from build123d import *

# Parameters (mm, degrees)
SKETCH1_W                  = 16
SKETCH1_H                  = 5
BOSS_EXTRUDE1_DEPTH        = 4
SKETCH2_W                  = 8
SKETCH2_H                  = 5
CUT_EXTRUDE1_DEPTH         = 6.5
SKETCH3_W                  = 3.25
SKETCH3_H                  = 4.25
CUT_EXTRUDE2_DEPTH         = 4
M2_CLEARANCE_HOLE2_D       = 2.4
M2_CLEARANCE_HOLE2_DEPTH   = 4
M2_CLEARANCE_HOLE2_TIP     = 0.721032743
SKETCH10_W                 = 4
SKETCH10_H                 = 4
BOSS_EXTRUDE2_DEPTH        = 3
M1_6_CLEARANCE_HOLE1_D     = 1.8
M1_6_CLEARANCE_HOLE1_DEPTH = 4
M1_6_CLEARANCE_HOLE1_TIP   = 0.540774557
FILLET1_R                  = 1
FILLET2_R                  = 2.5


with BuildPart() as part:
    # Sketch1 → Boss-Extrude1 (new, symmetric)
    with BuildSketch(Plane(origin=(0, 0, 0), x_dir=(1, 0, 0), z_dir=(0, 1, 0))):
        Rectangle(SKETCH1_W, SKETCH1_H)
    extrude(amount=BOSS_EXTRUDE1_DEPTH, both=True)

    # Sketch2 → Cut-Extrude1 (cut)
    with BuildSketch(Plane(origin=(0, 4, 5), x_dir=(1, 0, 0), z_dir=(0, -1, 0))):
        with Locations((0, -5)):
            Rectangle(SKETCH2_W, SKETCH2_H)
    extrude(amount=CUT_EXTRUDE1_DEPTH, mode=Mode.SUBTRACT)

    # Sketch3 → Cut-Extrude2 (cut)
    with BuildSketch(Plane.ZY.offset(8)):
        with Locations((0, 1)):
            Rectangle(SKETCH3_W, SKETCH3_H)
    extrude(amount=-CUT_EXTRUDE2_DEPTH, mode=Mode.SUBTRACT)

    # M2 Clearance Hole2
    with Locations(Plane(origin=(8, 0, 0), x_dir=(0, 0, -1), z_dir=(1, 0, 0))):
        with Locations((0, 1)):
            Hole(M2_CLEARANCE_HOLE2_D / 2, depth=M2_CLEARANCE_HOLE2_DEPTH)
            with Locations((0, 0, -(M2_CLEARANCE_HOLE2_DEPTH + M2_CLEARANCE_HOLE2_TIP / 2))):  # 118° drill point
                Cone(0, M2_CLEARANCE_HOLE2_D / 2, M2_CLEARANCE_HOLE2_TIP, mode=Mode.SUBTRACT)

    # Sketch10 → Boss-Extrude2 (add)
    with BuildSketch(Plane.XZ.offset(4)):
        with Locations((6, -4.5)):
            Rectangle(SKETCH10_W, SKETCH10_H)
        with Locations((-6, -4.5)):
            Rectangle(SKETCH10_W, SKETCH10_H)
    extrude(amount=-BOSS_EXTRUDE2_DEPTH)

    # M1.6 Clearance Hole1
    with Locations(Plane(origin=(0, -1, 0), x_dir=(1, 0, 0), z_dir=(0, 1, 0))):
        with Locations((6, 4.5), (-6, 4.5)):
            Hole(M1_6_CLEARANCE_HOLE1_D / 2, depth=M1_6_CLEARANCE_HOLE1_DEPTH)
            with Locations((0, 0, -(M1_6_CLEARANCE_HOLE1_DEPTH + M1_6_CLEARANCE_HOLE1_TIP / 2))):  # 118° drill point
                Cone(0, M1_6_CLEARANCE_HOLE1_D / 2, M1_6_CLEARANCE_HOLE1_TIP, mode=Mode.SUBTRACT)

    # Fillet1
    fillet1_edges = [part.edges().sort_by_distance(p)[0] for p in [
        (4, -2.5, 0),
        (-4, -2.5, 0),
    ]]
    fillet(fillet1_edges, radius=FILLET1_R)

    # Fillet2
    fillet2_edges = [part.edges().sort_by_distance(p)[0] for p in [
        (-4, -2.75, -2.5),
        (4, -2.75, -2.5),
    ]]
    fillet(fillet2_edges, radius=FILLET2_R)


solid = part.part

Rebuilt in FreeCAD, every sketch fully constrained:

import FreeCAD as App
import Part
import Sketcher
Q = App.Units.Quantity


def edges_at(feature, points):
    """Names of the edges that pass closest to the given points."""
    edges = feature.Shape.Edges
    near = lambda p: min(range(len(edges)), key=lambda i: edges[i].distToShape(Part.Vertex(*p))[0])
    return sorted({f"Edge{near(p) + 1}" for p in points})

doc = App.newDocument("Part")
body = doc.addObject("PartDesign::Body", "Body")

sketch1 = doc.addObject("Sketcher::SketchObject", "Sketch")
body.addObject(sketch1)
sketch1.AttachmentSupport = (doc.XZ_Plane, [""])
sketch1.MapMode = "FlatFace"
sketch1.addGeometry(Part.LineSegment(App.Vector(-8, -2, 0), App.Vector(-8, 2, 0)), False)
sketch1.addGeometry(Part.LineSegment(App.Vector(-8, 2, 0), App.Vector(8, 2, 0)), False)
sketch1.addGeometry(Part.LineSegment(App.Vector(8, 2, 0), App.Vector(8, -2, 0)), False)
sketch1.addGeometry(Part.LineSegment(App.Vector(8, -2, 0), App.Vector(-8, -2, 0)), False)
sketch1.addConstraint(Sketcher.Constraint("Coincident", 0, 2, 1, 1))
sketch1.addConstraint(Sketcher.Constraint("Coincident", 1, 2, 2, 1))
sketch1.addConstraint(Sketcher.Constraint("Coincident", 2, 2, 3, 1))
sketch1.addConstraint(Sketcher.Constraint("Coincident", 3, 2, 0, 1))
sketch1.addConstraint(Sketcher.Constraint("Vertical", 0))
sketch1.addConstraint(Sketcher.Constraint("Horizontal", 1))
sketch1.addConstraint(Sketcher.Constraint("Vertical", 2))
sketch1.addConstraint(Sketcher.Constraint("Horizontal", 3))
sketch1.addConstraint(Sketcher.Constraint("Symmetric", 0, 2, 2, 2, -1, 1))
sketch1.addConstraint(Sketcher.Constraint("DistanceX", 1, 1, 1, 2, Q("16 mm")))
sketch1.addConstraint(Sketcher.Constraint("DistanceY", 0, 1, 0, 2, Q("5 mm")))
pad1 = doc.addObject("PartDesign::Pad", "Pad")
body.addObject(pad1)
pad1.Profile = sketch1
pad1.Length = 8
pad1.Midplane = True

sketch2 = doc.addObject("Sketcher::SketchObject", "Sketch001")
body.addObject(sketch2)
sketch2.AttachmentSupport = (doc.XZ_Plane, [""])
sketch2.MapMode = "FlatFace"
sketch2.AttachmentOffset = App.Placement(App.Vector(0, 0, -4), App.Rotation())
sketch2.addGeometry(Part.LineSegment(App.Vector(-4, 2, 0), App.Vector(-4, -2, 0)), False)
sketch2.addGeometry(Part.LineSegment(App.Vector(-4, -2, 0), App.Vector(4, -2, 0)), False)
sketch2.addGeometry(Part.LineSegment(App.Vector(4, -2, 0), App.Vector(4, 2, 0)), False)
sketch2.addGeometry(Part.LineSegment(App.Vector(4, 2, 0), App.Vector(-4, 2, 0)), False)
sketch2.addConstraint(Sketcher.Constraint("Coincident", 0, 2, 1, 1))
sketch2.addConstraint(Sketcher.Constraint("Coincident", 1, 2, 2, 1))
sketch2.addConstraint(Sketcher.Constraint("Coincident", 2, 2, 3, 1))
sketch2.addConstraint(Sketcher.Constraint("Coincident", 3, 2, 0, 1))
sketch2.addConstraint(Sketcher.Constraint("Vertical", 0))
sketch2.addConstraint(Sketcher.Constraint("Horizontal", 1))
sketch2.addConstraint(Sketcher.Constraint("Vertical", 2))
sketch2.addConstraint(Sketcher.Constraint("Horizontal", 3))
sketch2.addConstraint(Sketcher.Constraint("Symmetric", 0, 2, 2, 2, -1, 1))
sketch2.addConstraint(Sketcher.Constraint("DistanceX", 1, 1, 1, 2, Q("8 mm")))
sketch2.addConstraint(Sketcher.Constraint("DistanceY", 0, 2, 0, 1, Q("5 mm")))
pocket1 = doc.addObject("PartDesign::Pocket", "Pocket")
body.addObject(pocket1)
pocket1.Profile = sketch2
pocket1.Length = 6.5
pocket1.Reversed = True

sketch3 = doc.addObject("Sketcher::SketchObject", "Sketch002")
body.addObject(sketch3)
sketch3.AttachmentSupport = (doc.YZ_Plane, [""])
sketch3.MapMode = "FlatFace"
sketch3.AttachmentOffset = App.Placement(App.Vector(0, 0, -8), App.Rotation())
sketch3.addGeometry(Part.LineSegment(App.Vector(3.1, -1.6, 0), App.Vector(-1.1, -1.6, 0)), False)
sketch3.addGeometry(Part.LineSegment(App.Vector(-1.1, -1.6, 0), App.Vector(-1.1, 1.6, 0)), False)
sketch3.addGeometry(Part.LineSegment(App.Vector(-1.1, 1.6, 0), App.Vector(3.1, 1.6, 0)), False)
sketch3.addGeometry(Part.LineSegment(App.Vector(3.1, 1.6, 0), App.Vector(3.1, -1.6, 0)), False)
sketch3.addConstraint(Sketcher.Constraint("Coincident", 0, 2, 1, 1))
sketch3.addConstraint(Sketcher.Constraint("Coincident", 1, 2, 2, 1))
sketch3.addConstraint(Sketcher.Constraint("Coincident", 2, 2, 3, 1))
sketch3.addConstraint(Sketcher.Constraint("Coincident", 3, 2, 0, 1))
sketch3.addConstraint(Sketcher.Constraint("Horizontal", 0))
sketch3.addConstraint(Sketcher.Constraint("Vertical", 1))
sketch3.addConstraint(Sketcher.Constraint("Horizontal", 2))
sketch3.addConstraint(Sketcher.Constraint("Vertical", 3))
sketch3.addConstraint(Sketcher.Constraint("DistanceX", 0, 2, 0, 1, Q("4.25 mm")))
sketch3.addConstraint(Sketcher.Constraint("DistanceY", 1, 1, 1, 2, Q("3.25 mm")))
sketch3.addConstraint(Sketcher.Constraint("DistanceX", 0, 2, -1, 1, Q("1.125 mm")))
sketch3.addConstraint(Sketcher.Constraint("DistanceY", 0, 2, -1, 1, Q("1.625 mm")))
pocket2 = doc.addObject("PartDesign::Pocket", "Pocket001")
body.addObject(pocket2)
pocket2.Profile = sketch3
pocket2.Length = 4
pocket2.Reversed = True

sketch4 = doc.addObject("Sketcher::SketchObject", "Sketch003")
body.addObject(sketch4)
sketch4.AttachmentSupport = (doc.YZ_Plane, [""])
sketch4.MapMode = "FlatFace"
sketch4.AttachmentOffset = App.Placement(App.Vector(0, 0, 8), App.Rotation())
sketch4.addGeometry(Part.Circle(App.Vector(1, 0, 0), App.Vector(0, 0, 1), 1.2), False)
sketch4.addConstraint(Sketcher.Constraint("PointOnObject", 0, 3, -1))
sketch4.addConstraint(Sketcher.Constraint("Diameter", 0, Q("2.4 mm")))
sketch4.addConstraint(Sketcher.Constraint("DistanceX", -1, 1, 0, 3, Q("1 mm")))
doc.recompute()
hole = doc.addObject("PartDesign::Hole", "Hole")
body.addObject(hole)
hole.Profile = sketch4
hole.ThreadType = "None"
hole.Diameter = 2.4
hole.DepthType = "Dimension"
hole.Depth = 4
hole.DrillPoint = "Angled"
hole.DrillPointAngle = 118

sketch5 = doc.addObject("Sketcher::SketchObject", "Sketch004")
body.addObject(sketch5)
sketch5.AttachmentSupport = (doc.XZ_Plane, [""])
sketch5.MapMode = "FlatFace"
sketch5.AttachmentOffset = App.Placement(App.Vector(0, 0, 4), App.Rotation())
sketch5.addGeometry(Part.LineSegment(App.Vector(4, -2.5, 0), App.Vector(4, -6.5, 0)), False)
sketch5.addGeometry(Part.LineSegment(App.Vector(4, -6.5, 0), App.Vector(8, -6.5, 0)), False)
sketch5.addGeometry(Part.LineSegment(App.Vector(8, -6.5, 0), App.Vector(8, -2.5, 0)), False)
sketch5.addGeometry(Part.LineSegment(App.Vector(8, -2.5, 0), App.Vector(4, -2.5, 0)), False)
sketch5.addGeometry(Part.LineSegment(App.Vector(-8, -2.5, 0), App.Vector(-8, -6.5, 0)), False)
sketch5.addGeometry(Part.LineSegment(App.Vector(-8, -6.5, 0), App.Vector(-4, -6.5, 0)), False)
sketch5.addGeometry(Part.LineSegment(App.Vector(-4, -6.5, 0), App.Vector(-4, -2.5, 0)), False)
sketch5.addGeometry(Part.LineSegment(App.Vector(-4, -2.5, 0), App.Vector(-8, -2.5, 0)), False)
sketch5.addConstraint(Sketcher.Constraint("Coincident", 0, 2, 1, 1))
sketch5.addConstraint(Sketcher.Constraint("Coincident", 1, 2, 2, 1))
sketch5.addConstraint(Sketcher.Constraint("Coincident", 2, 2, 3, 1))
sketch5.addConstraint(Sketcher.Constraint("Coincident", 3, 2, 0, 1))
sketch5.addConstraint(Sketcher.Constraint("Coincident", 4, 2, 5, 1))
sketch5.addConstraint(Sketcher.Constraint("Coincident", 5, 2, 6, 1))
sketch5.addConstraint(Sketcher.Constraint("Coincident", 6, 2, 7, 1))
sketch5.addConstraint(Sketcher.Constraint("Coincident", 7, 2, 4, 1))
sketch5.addConstraint(Sketcher.Constraint("Vertical", 0))
sketch5.addConstraint(Sketcher.Constraint("Horizontal", 1))
sketch5.addConstraint(Sketcher.Constraint("Vertical", 2))
sketch5.addConstraint(Sketcher.Constraint("Horizontal", 3))
sketch5.addConstraint(Sketcher.Constraint("Vertical", 4))
sketch5.addConstraint(Sketcher.Constraint("Horizontal", 5))
sketch5.addConstraint(Sketcher.Constraint("Vertical", 6))
sketch5.addConstraint(Sketcher.Constraint("Horizontal", 7))
sketch5.addConstraint(Sketcher.Constraint("Symmetric", 1, 2, 4, 2, -2))
sketch5.addConstraint(Sketcher.Constraint("Symmetric", 3, 2, 6, 2, -2))
sketch5.addConstraint(Sketcher.Constraint("Equal", 7, 0))
sketch5.addConstraint(Sketcher.Constraint("DistanceX", 1, 1, 1, 2, Q("4 mm")))
sketch5.addConstraint(Sketcher.Constraint("DistanceX", -1, 1, 0, 2, Q("4 mm")))
sketch5.addConstraint(Sketcher.Constraint("DistanceY", 0, 2, -1, 1, Q("6.5 mm")))
pad2 = doc.addObject("PartDesign::Pad", "Pad001")
body.addObject(pad2)
pad2.Profile = sketch5
pad2.Length = 3
pad2.Reversed = True

sketch6 = doc.addObject("Sketcher::SketchObject", "Sketch005")
body.addObject(sketch6)
sketch6.AttachmentSupport = (doc.XZ_Plane, [""])
sketch6.MapMode = "FlatFace"
sketch6.AttachmentOffset = App.Placement(App.Vector(0, 0, 1), App.Rotation())
sketch6.addGeometry(Part.Circle(App.Vector(6, -4.5, 0), App.Vector(0, 0, 1), 0.9), False)
sketch6.addGeometry(Part.Circle(App.Vector(-6, -4.5, 0), App.Vector(0, 0, 1), 0.9), False)
sketch6.addConstraint(Sketcher.Constraint("Equal", 0, 1))
sketch6.addConstraint(Sketcher.Constraint("Symmetric", 0, 3, 1, 3, -2))
sketch6.addConstraint(Sketcher.Constraint("Diameter", 0, Q("1.8 mm")))
sketch6.addConstraint(Sketcher.Constraint("DistanceX", -1, 1, 0, 3, Q("6 mm")))
sketch6.addConstraint(Sketcher.Constraint("DistanceY", 0, 3, -1, 1, Q("4.5 mm")))
doc.recompute()
hole2 = doc.addObject("PartDesign::Hole", "Hole001")
body.addObject(hole2)
hole2.Profile = sketch6
hole2.ThreadType = "None"
hole2.Diameter = 1.8
hole2.DepthType = "Dimension"
hole2.Depth = 4
hole2.DrillPoint = "Angled"
hole2.DrillPointAngle = 118
hole2.Reversed = True
doc.recompute()

fillet = doc.addObject("PartDesign::Fillet", "Fillet")
body.addObject(fillet)
fillet.Base = (hole2, edges_at(hole2, [(4, -2.5, 0), (-4, -2.5, 0)]))
fillet.Radius = 1
doc.recompute()

fillet2 = doc.addObject("PartDesign::Fillet", "Fillet001")
body.addObject(fillet2)
fillet2.Base = (fillet, edges_at(fillet, [(-4, -2.75, -2.5), (4, -2.75, -2.5)]))
fillet2.Radius = 2.5

doc.recompute()
